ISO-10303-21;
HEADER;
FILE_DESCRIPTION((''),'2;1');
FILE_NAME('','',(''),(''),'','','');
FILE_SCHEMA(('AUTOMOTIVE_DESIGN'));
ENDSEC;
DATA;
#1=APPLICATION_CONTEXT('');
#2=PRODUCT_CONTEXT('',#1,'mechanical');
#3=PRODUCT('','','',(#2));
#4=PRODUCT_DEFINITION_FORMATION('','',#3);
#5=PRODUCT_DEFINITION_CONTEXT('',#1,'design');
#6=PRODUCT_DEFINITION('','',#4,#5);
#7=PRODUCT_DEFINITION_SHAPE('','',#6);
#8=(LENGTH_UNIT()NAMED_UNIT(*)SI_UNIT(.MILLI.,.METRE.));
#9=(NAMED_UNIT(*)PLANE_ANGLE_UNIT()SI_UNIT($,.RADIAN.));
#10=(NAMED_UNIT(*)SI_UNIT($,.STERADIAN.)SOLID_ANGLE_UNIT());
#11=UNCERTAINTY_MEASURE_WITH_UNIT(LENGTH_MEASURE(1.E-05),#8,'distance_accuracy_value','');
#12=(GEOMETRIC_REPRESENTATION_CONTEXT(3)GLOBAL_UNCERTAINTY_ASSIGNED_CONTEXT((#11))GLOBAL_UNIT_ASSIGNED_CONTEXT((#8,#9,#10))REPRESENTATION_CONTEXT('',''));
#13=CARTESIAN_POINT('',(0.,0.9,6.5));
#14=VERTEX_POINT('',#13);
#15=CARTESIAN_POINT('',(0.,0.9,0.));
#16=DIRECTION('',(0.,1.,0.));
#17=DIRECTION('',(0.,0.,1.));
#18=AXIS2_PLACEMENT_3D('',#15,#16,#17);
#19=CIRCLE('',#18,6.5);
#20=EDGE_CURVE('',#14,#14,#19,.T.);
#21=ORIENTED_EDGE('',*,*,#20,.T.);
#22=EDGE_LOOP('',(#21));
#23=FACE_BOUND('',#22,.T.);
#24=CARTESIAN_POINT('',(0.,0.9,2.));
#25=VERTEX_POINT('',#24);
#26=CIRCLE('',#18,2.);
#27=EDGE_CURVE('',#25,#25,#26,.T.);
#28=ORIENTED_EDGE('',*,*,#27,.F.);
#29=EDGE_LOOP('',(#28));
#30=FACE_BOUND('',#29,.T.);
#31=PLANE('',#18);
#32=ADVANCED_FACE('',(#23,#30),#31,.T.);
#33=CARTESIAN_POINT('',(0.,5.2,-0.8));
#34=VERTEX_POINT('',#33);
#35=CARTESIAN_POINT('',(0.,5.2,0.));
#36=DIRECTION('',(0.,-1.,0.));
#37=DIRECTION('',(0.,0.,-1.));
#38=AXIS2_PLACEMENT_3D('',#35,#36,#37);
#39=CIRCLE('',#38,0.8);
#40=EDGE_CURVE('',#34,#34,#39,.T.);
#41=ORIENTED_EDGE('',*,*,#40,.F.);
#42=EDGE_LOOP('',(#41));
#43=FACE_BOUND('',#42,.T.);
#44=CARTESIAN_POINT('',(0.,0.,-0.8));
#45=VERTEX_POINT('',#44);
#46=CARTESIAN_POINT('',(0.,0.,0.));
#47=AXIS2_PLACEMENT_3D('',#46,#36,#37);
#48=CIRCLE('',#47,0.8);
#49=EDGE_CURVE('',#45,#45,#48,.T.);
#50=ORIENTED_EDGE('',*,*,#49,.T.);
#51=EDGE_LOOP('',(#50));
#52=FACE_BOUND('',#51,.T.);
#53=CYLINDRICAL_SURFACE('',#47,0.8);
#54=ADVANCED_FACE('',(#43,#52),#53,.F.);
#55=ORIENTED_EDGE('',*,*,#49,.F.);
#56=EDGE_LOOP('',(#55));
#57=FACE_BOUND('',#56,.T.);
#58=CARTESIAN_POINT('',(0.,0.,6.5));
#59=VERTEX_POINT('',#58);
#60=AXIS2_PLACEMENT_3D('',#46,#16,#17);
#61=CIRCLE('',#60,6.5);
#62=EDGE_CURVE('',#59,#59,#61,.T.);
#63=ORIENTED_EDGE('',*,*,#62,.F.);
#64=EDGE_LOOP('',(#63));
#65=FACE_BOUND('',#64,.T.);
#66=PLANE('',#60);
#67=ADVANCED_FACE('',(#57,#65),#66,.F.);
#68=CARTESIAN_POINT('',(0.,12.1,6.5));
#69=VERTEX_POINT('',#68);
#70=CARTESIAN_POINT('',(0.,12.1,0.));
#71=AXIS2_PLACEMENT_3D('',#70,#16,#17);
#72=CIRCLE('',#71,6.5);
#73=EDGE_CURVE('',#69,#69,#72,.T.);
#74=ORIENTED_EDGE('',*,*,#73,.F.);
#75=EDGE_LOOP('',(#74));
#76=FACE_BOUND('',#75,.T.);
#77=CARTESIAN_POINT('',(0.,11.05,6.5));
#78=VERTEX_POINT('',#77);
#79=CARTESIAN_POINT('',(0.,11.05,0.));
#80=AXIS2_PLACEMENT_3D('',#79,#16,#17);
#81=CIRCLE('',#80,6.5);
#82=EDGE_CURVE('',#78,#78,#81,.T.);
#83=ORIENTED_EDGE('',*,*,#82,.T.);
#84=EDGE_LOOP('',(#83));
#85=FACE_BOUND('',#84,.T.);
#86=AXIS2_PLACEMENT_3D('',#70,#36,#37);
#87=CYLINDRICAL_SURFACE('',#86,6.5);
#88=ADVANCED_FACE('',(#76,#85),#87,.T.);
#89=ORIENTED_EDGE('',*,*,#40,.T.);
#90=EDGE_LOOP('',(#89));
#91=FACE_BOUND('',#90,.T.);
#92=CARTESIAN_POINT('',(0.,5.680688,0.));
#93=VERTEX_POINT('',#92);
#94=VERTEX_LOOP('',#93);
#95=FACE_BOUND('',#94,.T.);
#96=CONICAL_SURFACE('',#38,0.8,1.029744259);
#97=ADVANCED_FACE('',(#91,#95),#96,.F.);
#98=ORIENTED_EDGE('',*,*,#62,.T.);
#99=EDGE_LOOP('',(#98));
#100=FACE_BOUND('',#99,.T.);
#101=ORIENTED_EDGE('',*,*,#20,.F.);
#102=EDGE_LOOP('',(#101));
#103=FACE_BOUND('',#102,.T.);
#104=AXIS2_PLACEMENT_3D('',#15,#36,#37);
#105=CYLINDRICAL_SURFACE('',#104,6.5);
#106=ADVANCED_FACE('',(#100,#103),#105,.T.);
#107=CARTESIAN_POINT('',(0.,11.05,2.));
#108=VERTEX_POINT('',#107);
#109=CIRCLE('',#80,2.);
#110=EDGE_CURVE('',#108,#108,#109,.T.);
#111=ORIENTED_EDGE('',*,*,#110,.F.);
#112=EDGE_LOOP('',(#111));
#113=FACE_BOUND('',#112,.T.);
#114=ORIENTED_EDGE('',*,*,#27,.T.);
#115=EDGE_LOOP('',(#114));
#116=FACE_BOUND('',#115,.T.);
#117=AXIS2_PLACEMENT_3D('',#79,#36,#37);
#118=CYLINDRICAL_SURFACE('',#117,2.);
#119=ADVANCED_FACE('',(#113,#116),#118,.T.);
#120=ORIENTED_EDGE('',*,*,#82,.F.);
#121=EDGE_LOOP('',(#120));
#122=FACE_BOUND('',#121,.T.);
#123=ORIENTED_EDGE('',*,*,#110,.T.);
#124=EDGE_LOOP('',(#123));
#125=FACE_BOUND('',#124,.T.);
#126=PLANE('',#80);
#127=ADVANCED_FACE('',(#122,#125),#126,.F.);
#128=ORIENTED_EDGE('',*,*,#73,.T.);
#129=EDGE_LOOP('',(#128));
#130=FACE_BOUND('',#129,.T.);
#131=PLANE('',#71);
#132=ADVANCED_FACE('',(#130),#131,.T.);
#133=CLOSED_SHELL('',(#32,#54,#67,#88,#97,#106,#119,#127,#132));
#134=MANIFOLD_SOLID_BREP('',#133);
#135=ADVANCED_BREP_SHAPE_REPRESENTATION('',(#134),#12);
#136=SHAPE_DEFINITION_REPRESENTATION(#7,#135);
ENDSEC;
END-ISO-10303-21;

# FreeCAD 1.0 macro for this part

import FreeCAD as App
import Part
import Sketcher

V = App.Vector
Q = App.Units.Quantity

doc = App.newDocument("Part")
body = doc.addObject("PartDesign::Body", "Body")

# Sketch on XZ plane
sketch1 = body.newObject("Sketcher::SketchObject", "Sketch")
sketch1.AttachmentSupport = (doc.getObject("XZ_Plane"), [""])
sketch1.MapMode = "FlatFace"
sketch1.addGeometry(Part.Circle(V(0, 0, 0), V(0, 0, 1), 6), False)
sketch1.addConstraint([
    Sketcher.Constraint("Coincident", 0, 3, -1, 1),
    Sketcher.Constraint("Diameter", 0, Q("13 mm")),
])
pad1 = body.newObject("PartDesign::Pad", "Pad")
pad1.Profile = sketch1
pad1.Length = 0.9
pad1.Reversed = True

# Sketch on XZ plane
sketch2 = body.newObject("Sketcher::SketchObject", "Sketch001")
sketch2.AttachmentSupport = (doc.getObject("XZ_Plane"), [""])
sketch2.MapMode = "FlatFace"
sketch2.AttachmentOffset = App.Placement(V(0, 0, -0.9), App.Rotation())
sketch2.addGeometry(Part.Circle(V(0, 0, 0), V(0, 0, 1), 2), False)
sketch2.addConstraint([
    Sketcher.Constraint("Coincident", 0, 3, -1, 1),
    Sketcher.Constraint("Diameter", 0, Q("4 mm")),
])
pad2 = body.newObject("PartDesign::Pad", "Pad001")
pad2.Profile = sketch2
pad2.Length = 10.15
pad2.Reversed = True

# Sketch on XZ plane
sketch3 = body.newObject("Sketcher::SketchObject", "Sketch002")
sketch3.AttachmentSupport = (doc.getObject("XZ_Plane"), [""])
sketch3.MapMode = "FlatFace"
sketch3.AttachmentOffset = App.Placement(V(0, 0, -11.05), App.Rotation())
sketch3.addGeometry(Part.Circle(V(0, 0, 0), V(0, 0, 1), 6), False)
sketch3.addConstraint([
    Sketcher.Constraint("Coincident", 0, 3, -1, 1),
    Sketcher.Constraint("Diameter", 0, Q("13 mm")),
])
pad3 = body.newObject("PartDesign::Pad", "Pad002")
pad3.Profile = sketch3
pad3.Length = 1.05
pad3.Reversed = True

# Sketch on XZ plane
sketch4 = body.newObject("Sketcher::SketchObject", "Sketch003")
sketch4.AttachmentSupport = (doc.getObject("XZ_Plane"), [""])
sketch4.MapMode = "FlatFace"
sketch4.addGeometry(Part.Circle(V(0, 0, 0), V(0, 0, 1), 0.8), False)
sketch4.addConstraint([
    Sketcher.Constraint("Coincident", 0, 3, -1, 1),
    Sketcher.Constraint("Diameter", 0, Q("1.6 mm")),
])
doc.recompute()
hole = body.newObject("PartDesign::Hole", "Hole")
hole.Profile = sketch4
hole.ThreadType = "None"
hole.Diameter = 1.6
hole.DepthType = "Dimension"
hole.Depth = 5.2
hole.DrillPoint = "Angled"
hole.DrillPointAngle = 118

doc.recompute()
